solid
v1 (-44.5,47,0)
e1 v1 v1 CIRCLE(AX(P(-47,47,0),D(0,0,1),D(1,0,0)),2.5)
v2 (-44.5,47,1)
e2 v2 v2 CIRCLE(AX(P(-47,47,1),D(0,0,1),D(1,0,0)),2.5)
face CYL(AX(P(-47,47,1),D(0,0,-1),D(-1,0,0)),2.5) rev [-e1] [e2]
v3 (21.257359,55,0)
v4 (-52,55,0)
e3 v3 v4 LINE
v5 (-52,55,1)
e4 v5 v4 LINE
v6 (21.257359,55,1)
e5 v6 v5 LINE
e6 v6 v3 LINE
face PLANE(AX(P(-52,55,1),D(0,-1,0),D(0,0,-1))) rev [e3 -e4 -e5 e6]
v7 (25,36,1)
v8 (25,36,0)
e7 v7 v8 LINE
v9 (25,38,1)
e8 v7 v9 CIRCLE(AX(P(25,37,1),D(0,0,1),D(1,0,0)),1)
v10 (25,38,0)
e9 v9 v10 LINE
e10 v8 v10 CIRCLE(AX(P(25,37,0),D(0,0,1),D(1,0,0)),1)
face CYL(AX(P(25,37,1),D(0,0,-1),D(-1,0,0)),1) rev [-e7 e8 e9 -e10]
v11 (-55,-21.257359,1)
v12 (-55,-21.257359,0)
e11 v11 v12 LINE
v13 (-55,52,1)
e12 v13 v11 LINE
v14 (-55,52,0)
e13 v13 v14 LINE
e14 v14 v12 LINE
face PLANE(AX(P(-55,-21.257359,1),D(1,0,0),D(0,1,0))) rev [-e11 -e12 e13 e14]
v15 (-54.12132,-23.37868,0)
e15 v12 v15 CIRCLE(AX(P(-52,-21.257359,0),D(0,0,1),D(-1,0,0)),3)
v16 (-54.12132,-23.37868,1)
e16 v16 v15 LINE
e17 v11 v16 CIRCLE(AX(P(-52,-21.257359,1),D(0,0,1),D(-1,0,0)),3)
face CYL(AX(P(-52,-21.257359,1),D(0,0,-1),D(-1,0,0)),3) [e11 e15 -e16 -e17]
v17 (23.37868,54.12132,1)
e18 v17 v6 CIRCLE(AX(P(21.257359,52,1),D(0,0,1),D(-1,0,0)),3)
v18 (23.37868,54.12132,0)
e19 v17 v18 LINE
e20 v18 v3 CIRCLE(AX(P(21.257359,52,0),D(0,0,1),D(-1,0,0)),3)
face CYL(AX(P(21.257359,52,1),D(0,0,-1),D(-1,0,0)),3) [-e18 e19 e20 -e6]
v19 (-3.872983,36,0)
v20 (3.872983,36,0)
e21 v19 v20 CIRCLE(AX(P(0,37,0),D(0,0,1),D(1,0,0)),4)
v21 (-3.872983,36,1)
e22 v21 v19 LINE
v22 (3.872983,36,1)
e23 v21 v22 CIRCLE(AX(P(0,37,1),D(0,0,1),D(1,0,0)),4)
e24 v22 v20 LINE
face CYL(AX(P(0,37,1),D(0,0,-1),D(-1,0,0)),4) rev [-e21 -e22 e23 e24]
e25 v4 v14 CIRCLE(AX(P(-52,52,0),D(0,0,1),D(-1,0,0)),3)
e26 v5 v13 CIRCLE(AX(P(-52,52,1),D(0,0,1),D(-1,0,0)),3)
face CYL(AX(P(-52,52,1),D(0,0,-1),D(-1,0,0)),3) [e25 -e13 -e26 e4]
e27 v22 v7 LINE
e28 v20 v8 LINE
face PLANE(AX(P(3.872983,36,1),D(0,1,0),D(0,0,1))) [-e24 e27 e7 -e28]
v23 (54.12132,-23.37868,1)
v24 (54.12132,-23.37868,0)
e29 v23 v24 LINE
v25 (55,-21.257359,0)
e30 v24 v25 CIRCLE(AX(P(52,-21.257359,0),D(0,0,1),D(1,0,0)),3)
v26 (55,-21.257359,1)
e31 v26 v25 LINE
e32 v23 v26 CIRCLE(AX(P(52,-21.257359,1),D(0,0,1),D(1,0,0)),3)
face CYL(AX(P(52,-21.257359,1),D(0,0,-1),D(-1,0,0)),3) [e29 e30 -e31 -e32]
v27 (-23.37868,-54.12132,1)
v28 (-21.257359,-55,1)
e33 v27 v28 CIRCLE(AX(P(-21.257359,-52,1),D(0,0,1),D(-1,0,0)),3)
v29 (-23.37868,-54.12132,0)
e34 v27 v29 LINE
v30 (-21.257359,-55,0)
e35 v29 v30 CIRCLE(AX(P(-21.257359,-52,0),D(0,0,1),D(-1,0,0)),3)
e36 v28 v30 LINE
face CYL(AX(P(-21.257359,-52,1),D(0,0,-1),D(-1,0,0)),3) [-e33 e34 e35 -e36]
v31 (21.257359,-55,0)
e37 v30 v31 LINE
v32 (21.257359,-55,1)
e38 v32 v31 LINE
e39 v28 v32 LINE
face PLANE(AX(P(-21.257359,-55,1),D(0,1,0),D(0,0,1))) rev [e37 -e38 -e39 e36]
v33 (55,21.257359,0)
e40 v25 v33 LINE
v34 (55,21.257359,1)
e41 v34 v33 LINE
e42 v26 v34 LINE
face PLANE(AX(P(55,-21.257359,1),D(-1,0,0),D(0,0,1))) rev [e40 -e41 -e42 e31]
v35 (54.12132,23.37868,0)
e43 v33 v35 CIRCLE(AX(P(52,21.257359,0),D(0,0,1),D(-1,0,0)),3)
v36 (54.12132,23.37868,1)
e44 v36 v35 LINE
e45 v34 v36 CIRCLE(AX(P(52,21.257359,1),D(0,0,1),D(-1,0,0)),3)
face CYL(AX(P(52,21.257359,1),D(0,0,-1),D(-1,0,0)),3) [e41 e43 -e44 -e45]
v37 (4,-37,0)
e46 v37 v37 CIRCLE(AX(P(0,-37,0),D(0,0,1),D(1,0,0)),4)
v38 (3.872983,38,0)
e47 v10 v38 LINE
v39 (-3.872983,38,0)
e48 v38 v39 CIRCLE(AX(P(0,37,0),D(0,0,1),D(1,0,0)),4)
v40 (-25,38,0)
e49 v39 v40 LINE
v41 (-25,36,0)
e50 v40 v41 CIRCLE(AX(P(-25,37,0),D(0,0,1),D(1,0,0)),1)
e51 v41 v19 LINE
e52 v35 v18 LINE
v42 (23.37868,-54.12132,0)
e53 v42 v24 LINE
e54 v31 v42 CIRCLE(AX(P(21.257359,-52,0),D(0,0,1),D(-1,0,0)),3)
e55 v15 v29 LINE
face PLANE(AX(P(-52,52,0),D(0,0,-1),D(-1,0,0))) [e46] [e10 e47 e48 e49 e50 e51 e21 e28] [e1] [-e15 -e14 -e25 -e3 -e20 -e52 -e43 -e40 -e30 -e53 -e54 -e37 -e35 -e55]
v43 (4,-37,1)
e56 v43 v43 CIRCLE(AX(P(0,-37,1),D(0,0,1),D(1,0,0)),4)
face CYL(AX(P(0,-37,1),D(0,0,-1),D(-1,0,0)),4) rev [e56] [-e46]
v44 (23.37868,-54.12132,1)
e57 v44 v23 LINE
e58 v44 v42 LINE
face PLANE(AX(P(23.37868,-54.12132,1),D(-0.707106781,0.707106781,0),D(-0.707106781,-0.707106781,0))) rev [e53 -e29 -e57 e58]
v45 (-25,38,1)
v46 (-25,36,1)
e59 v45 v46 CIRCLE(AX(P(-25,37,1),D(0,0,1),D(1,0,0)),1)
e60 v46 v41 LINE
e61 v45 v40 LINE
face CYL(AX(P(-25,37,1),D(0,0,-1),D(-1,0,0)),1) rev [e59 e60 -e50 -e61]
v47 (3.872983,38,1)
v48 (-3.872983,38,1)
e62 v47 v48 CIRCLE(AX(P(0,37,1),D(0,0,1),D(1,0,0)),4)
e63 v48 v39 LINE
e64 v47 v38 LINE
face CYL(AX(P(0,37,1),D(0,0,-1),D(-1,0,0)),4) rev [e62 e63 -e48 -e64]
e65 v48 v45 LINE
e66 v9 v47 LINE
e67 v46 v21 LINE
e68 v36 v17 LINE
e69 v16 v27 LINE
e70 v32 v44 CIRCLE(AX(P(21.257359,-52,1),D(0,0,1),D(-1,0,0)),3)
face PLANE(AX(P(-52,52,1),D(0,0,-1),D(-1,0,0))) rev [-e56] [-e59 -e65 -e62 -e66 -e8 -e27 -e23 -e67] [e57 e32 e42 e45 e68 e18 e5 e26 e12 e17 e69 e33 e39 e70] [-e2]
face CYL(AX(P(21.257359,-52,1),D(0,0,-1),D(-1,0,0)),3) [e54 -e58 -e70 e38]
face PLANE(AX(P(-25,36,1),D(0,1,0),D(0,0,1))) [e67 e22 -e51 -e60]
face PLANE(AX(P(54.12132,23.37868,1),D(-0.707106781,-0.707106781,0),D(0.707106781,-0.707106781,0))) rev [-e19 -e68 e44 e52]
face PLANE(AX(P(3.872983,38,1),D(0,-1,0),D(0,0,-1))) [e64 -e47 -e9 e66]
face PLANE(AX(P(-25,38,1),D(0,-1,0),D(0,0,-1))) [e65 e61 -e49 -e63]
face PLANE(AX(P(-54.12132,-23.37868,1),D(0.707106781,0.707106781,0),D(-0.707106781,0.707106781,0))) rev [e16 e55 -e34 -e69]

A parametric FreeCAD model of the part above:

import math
import FreeCAD as App
import Part
import Sketcher

V = App.Vector

doc = App.newDocument("Part")
body = doc.addObject("PartDesign::Body", "Body")

sketch1 = body.newObject("Sketcher::SketchObject", "Sketch")
sketch1.AttachmentSupport = (doc.getObject("XY_Plane"), [""])
sketch1.MapMode = "FlatFace"
sketch1.addGeometry(Part.LineSegment(V(55, -21.257359, 0), V(55, 21.257359, 0)), False)
sketch1.addGeometry(Part.ArcOfCircle(Part.Circle(V(52, 21.257359, 0), V(0, 0, 1), 3), math.radians(0), math.radians(45)), False)
sketch1.addGeometry(Part.LineSegment(V(54.12132, 23.37868, 0), V(23.37868, 54.12132, 0)), False)
sketch1.addGeometry(Part.ArcOfCircle(Part.Circle(V(21.257359, 52, 0), V(0, 0, 1), 3), math.radians(45), math.radians(90)), False)
sketch1.addGeometry(Part.LineSegment(V(21.257359, 55, 0), V(-52, 55, 0)), False)
sketch1.addGeometry(Part.ArcOfCircle(Part.Circle(V(-52, 52, 0), V(0, 0, 1), 3), math.radians(90), math.radians(180)), False)
sketch1.addGeometry(Part.LineSegment(V(-55, 52, 0), V(-55, -21.257359, 0)), False)
sketch1.addGeometry(Part.ArcOfCircle(Part.Circle(V(-52, -21.257359, 0), V(0, 0, 1), 3), math.radians(180), math.radians(225)), False)
sketch1.addGeometry(Part.LineSegment(V(-54.12132, -23.37868, 0), V(-23.37868, -54.12132, 0)), False)
sketch1.addGeometry(Part.ArcOfCircle(Part.Circle(V(-21.257359, -52, 0), V(0, 0, 1), 3), math.radians(-135), math.radians(-90)), False)
sketch1.addGeometry(Part.LineSegment(V(-21.257359, -55, 0), V(21.257359, -55, 0)), False)
sketch1.addGeometry(Part.ArcOfCircle(Part.Circle(V(21.257359, -52, 0), V(0, 0, 1), 3), math.radians(-90), math.radians(-45)), False)
sketch1.addGeometry(Part.LineSegment(V(23.37868, -54.12132, 0), V(54.12132, -23.37868, 0)), False)
sketch1.addGeometry(Part.ArcOfCircle(Part.Circle(V(52, -21.257359, 0), V(0, 0, 1), 3), math.radians(-45), math.radians(0)), False)
sketch1.addGeometry(Part.Circle(V(0, -37, 0), V(0, 0, 1), 4), False)
sketch1.addGeometry(Part.Circle(V(-47, 47, 0), V(0, 0, 1), 2.5), False)
sketch1.addGeometry(Part.ArcOfCircle(Part.Circle(V(-25, 37, 0), V(0, 0, 1), 1), math.radians(90), math.radians(270)), False)
sketch1.addGeometry(Part.LineSegment(V(-25, 38, 0), V(-3.872983, 38, 0)), False)
sketch1.addGeometry(Part.ArcOfCircle(Part.Circle(V(0, 37, 0), V(0, 0, 1), 4), math.radians(14.477512), math.radians(165.522488)), False)
sketch1.addGeometry(Part.LineSegment(V(3.872983, 38, 0), V(25, 38, 0)), False)
sketch1.addGeometry(Part.ArcOfCircle(Part.Circle(V(25, 37, 0), V(0, 0, 1), 1), math.radians(-90), math.radians(90)), False)
sketch1.addGeometry(Part.LineSegment(V(25, 36, 0), V(3.872983, 36, 0)), False)
sketch1.addGeometry(Part.ArcOfCircle(Part.Circle(V(0, 37, 0), V(0, 0, 1), 4), math.radians(-165.522488), math.radians(-14.477512)), False)
sketch1.addGeometry(Part.LineSegment(V(-3.872983, 36, 0), V(-25, 36, 0)), False)
sketch1.addConstraint(Sketcher.Constraint("Tangent", 0, 2, 1, 1))
sketch1.addConstraint(Sketcher.Constraint("Tangent", 1, 2, 2, 1))
sketch1.addConstraint(Sketcher.Constraint("Tangent", 2, 2, 3, 1))
sketch1.addConstraint(Sketcher.Constraint("Tangent", 3, 2, 4, 1))
sketch1.addConstraint(Sketcher.Constraint("Tangent", 4, 2, 5, 1))
sketch1.addConstraint(Sketcher.Constraint("Tangent", 5, 2, 6, 1))
sketch1.addConstraint(Sketcher.Constraint("Tangent", 6, 2, 7, 1))
sketch1.addConstraint(Sketcher.Constraint("Tangent", 7, 2, 8, 1))
sketch1.addConstraint(Sketcher.Constraint("Tangent", 8, 2, 9, 1))
sketch1.addConstraint(Sketcher.Constraint("Tangent", 9, 2, 10, 1))
sketch1.addConstraint(Sketcher.Constraint("Tangent", 10, 2, 11, 1))
sketch1.addConstraint(Sketcher.Constraint("Tangent", 11, 2, 12, 1))
sketch1.addConstraint(Sketcher.Constraint("Tangent", 12, 2, 13, 1))
sketch1.addConstraint(Sketcher.Constraint("Tangent", 13, 2, 0, 1))
sketch1.addConstraint(Sketcher.Constraint("Tangent", 16, 1, 17, 1))
sketch1.addConstraint(Sketcher.Constraint("Coincident", 17, 2, 18, 2))
sketch1.addConstraint(Sketcher.Constraint("Coincident", 18, 1, 19, 1))
sketch1.addConstraint(Sketcher.Constraint("Tangent", 19, 2, 20, 2))
sketch1.addConstraint(Sketcher.Constraint("Tangent", 20, 1, 21, 1))
sketch1.addConstraint(Sketcher.Constraint("Coincident", 21, 2, 22, 2))
sketch1.addConstraint(Sketcher.Constraint("Coincident", 22, 1, 23, 1))
sketch1.addConstraint(Sketcher.Constraint("Tangent", 23, 2, 16, 2))
sketch1.addConstraint(Sketcher.Constraint("Vertical", 0))
sketch1.addConstraint(Sketcher.Constraint("Horizontal", 4))
sketch1.addConstraint(Sketcher.Constraint("Vertical", 6))
sketch1.addConstraint(Sketcher.Constraint("Horizontal", 10))
sketch1.addConstraint(Sketcher.Constraint("Horizontal", 17))
sketch1.addConstraint(Sketcher.Constraint("Horizontal", 19))
sketch1.addConstraint(Sketcher.Constraint("Horizontal", 21))
sketch1.addConstraint(Sketcher.Constraint("Horizontal", 23))
sketch1.addConstraint(Sketcher.Constraint("Coincident", 22, 3, 18, 3))
sketch1.addConstraint(Sketcher.Constraint("Equal", 1, 3))
sketch1.addConstraint(Sketcher.Constraint("Equal", 3, 5))
sketch1.addConstraint(Sketcher.Constraint("Equal", 5, 7))
sketch1.addConstraint(Sketcher.Constraint("Equal", 7, 9))
sketch1.addConstraint(Sketcher.Constraint("Equal", 9, 11))
sketch1.addConstraint(Sketcher.Constraint("Equal", 11, 13))
sketch1.addConstraint(Sketcher.Constraint("Equal", 14, 18))
sketch1.addConstraint(Sketcher.Constraint("Equal", 16, 20))
sketch1.addConstraint(Sketcher.Constraint("Equal", 18, 22))
sketch1.addConstraint(Sketcher.Constraint("Symmetric", 1, 3, 7, 3, -1, 1))
sketch1.addConstraint(Sketcher.Constraint("Symmetric", 3, 3, 9, 3, -1, 1))
sketch1.addConstraint(Sketcher.Constraint("Symmetric", 14, 3, 18, 3, -1, 1))
sketch1.addConstraint(Sketcher.Constraint("Symmetric", 16, 3, 20, 3, -2))
sketch1.addConstraint(Sketcher.Constraint("Symmetric", 8, 2, 11, 2, -2))
sketch1.addConstraint(Sketcher.Constraint("PointOnObject", 14, 3, -2))
sketch1.addConstraint(Sketcher.Constraint("Perpendicular", 8, 12))
sketch1.addConstraint(Sketcher.Constraint("Horizontal", 16, 3, 18, 3))
sketch1.addConstraint(Sketcher.Constraint("Equal", 10, 0))
sketch1.addConstraint(Sketcher.Constraint("Diameter", 14, 8.0))
sketch1.addConstraint(Sketcher.Constraint("Diameter", 15, 5.0))
sketch1.addConstraint(Sketcher.Constraint("Radius", 1, 3.0))
sketch1.addConstraint(Sketcher.Constraint("Radius", 16, 1.0))
sketch1.addConstraint(Sketcher.Constraint("DistanceX", -1, 1, 1, 3, 52.0))
sketch1.addConstraint(Sketcher.Constraint("DistanceY", 14, 3, -1, 1, 37.0))
sketch1.addConstraint(Sketcher.Constraint("DistanceX", 15, 3, -1, 1, 47.0))
sketch1.addConstraint(Sketcher.Constraint("DistanceY", -1, 1, 15, 3, 47.0))
sketch1.addConstraint(Sketcher.Constraint("DistanceX", 16, 3, -1, 1, 25.0))
sketch1.addConstraint(Sketcher.Constraint("DistanceX", 4, 2, 4, 1, 73.257359))
pad1 = body.newObject("PartDesign::Pad", "Pad")
pad1.Profile = sketch1
pad1.Length = 1

doc.recompute()
